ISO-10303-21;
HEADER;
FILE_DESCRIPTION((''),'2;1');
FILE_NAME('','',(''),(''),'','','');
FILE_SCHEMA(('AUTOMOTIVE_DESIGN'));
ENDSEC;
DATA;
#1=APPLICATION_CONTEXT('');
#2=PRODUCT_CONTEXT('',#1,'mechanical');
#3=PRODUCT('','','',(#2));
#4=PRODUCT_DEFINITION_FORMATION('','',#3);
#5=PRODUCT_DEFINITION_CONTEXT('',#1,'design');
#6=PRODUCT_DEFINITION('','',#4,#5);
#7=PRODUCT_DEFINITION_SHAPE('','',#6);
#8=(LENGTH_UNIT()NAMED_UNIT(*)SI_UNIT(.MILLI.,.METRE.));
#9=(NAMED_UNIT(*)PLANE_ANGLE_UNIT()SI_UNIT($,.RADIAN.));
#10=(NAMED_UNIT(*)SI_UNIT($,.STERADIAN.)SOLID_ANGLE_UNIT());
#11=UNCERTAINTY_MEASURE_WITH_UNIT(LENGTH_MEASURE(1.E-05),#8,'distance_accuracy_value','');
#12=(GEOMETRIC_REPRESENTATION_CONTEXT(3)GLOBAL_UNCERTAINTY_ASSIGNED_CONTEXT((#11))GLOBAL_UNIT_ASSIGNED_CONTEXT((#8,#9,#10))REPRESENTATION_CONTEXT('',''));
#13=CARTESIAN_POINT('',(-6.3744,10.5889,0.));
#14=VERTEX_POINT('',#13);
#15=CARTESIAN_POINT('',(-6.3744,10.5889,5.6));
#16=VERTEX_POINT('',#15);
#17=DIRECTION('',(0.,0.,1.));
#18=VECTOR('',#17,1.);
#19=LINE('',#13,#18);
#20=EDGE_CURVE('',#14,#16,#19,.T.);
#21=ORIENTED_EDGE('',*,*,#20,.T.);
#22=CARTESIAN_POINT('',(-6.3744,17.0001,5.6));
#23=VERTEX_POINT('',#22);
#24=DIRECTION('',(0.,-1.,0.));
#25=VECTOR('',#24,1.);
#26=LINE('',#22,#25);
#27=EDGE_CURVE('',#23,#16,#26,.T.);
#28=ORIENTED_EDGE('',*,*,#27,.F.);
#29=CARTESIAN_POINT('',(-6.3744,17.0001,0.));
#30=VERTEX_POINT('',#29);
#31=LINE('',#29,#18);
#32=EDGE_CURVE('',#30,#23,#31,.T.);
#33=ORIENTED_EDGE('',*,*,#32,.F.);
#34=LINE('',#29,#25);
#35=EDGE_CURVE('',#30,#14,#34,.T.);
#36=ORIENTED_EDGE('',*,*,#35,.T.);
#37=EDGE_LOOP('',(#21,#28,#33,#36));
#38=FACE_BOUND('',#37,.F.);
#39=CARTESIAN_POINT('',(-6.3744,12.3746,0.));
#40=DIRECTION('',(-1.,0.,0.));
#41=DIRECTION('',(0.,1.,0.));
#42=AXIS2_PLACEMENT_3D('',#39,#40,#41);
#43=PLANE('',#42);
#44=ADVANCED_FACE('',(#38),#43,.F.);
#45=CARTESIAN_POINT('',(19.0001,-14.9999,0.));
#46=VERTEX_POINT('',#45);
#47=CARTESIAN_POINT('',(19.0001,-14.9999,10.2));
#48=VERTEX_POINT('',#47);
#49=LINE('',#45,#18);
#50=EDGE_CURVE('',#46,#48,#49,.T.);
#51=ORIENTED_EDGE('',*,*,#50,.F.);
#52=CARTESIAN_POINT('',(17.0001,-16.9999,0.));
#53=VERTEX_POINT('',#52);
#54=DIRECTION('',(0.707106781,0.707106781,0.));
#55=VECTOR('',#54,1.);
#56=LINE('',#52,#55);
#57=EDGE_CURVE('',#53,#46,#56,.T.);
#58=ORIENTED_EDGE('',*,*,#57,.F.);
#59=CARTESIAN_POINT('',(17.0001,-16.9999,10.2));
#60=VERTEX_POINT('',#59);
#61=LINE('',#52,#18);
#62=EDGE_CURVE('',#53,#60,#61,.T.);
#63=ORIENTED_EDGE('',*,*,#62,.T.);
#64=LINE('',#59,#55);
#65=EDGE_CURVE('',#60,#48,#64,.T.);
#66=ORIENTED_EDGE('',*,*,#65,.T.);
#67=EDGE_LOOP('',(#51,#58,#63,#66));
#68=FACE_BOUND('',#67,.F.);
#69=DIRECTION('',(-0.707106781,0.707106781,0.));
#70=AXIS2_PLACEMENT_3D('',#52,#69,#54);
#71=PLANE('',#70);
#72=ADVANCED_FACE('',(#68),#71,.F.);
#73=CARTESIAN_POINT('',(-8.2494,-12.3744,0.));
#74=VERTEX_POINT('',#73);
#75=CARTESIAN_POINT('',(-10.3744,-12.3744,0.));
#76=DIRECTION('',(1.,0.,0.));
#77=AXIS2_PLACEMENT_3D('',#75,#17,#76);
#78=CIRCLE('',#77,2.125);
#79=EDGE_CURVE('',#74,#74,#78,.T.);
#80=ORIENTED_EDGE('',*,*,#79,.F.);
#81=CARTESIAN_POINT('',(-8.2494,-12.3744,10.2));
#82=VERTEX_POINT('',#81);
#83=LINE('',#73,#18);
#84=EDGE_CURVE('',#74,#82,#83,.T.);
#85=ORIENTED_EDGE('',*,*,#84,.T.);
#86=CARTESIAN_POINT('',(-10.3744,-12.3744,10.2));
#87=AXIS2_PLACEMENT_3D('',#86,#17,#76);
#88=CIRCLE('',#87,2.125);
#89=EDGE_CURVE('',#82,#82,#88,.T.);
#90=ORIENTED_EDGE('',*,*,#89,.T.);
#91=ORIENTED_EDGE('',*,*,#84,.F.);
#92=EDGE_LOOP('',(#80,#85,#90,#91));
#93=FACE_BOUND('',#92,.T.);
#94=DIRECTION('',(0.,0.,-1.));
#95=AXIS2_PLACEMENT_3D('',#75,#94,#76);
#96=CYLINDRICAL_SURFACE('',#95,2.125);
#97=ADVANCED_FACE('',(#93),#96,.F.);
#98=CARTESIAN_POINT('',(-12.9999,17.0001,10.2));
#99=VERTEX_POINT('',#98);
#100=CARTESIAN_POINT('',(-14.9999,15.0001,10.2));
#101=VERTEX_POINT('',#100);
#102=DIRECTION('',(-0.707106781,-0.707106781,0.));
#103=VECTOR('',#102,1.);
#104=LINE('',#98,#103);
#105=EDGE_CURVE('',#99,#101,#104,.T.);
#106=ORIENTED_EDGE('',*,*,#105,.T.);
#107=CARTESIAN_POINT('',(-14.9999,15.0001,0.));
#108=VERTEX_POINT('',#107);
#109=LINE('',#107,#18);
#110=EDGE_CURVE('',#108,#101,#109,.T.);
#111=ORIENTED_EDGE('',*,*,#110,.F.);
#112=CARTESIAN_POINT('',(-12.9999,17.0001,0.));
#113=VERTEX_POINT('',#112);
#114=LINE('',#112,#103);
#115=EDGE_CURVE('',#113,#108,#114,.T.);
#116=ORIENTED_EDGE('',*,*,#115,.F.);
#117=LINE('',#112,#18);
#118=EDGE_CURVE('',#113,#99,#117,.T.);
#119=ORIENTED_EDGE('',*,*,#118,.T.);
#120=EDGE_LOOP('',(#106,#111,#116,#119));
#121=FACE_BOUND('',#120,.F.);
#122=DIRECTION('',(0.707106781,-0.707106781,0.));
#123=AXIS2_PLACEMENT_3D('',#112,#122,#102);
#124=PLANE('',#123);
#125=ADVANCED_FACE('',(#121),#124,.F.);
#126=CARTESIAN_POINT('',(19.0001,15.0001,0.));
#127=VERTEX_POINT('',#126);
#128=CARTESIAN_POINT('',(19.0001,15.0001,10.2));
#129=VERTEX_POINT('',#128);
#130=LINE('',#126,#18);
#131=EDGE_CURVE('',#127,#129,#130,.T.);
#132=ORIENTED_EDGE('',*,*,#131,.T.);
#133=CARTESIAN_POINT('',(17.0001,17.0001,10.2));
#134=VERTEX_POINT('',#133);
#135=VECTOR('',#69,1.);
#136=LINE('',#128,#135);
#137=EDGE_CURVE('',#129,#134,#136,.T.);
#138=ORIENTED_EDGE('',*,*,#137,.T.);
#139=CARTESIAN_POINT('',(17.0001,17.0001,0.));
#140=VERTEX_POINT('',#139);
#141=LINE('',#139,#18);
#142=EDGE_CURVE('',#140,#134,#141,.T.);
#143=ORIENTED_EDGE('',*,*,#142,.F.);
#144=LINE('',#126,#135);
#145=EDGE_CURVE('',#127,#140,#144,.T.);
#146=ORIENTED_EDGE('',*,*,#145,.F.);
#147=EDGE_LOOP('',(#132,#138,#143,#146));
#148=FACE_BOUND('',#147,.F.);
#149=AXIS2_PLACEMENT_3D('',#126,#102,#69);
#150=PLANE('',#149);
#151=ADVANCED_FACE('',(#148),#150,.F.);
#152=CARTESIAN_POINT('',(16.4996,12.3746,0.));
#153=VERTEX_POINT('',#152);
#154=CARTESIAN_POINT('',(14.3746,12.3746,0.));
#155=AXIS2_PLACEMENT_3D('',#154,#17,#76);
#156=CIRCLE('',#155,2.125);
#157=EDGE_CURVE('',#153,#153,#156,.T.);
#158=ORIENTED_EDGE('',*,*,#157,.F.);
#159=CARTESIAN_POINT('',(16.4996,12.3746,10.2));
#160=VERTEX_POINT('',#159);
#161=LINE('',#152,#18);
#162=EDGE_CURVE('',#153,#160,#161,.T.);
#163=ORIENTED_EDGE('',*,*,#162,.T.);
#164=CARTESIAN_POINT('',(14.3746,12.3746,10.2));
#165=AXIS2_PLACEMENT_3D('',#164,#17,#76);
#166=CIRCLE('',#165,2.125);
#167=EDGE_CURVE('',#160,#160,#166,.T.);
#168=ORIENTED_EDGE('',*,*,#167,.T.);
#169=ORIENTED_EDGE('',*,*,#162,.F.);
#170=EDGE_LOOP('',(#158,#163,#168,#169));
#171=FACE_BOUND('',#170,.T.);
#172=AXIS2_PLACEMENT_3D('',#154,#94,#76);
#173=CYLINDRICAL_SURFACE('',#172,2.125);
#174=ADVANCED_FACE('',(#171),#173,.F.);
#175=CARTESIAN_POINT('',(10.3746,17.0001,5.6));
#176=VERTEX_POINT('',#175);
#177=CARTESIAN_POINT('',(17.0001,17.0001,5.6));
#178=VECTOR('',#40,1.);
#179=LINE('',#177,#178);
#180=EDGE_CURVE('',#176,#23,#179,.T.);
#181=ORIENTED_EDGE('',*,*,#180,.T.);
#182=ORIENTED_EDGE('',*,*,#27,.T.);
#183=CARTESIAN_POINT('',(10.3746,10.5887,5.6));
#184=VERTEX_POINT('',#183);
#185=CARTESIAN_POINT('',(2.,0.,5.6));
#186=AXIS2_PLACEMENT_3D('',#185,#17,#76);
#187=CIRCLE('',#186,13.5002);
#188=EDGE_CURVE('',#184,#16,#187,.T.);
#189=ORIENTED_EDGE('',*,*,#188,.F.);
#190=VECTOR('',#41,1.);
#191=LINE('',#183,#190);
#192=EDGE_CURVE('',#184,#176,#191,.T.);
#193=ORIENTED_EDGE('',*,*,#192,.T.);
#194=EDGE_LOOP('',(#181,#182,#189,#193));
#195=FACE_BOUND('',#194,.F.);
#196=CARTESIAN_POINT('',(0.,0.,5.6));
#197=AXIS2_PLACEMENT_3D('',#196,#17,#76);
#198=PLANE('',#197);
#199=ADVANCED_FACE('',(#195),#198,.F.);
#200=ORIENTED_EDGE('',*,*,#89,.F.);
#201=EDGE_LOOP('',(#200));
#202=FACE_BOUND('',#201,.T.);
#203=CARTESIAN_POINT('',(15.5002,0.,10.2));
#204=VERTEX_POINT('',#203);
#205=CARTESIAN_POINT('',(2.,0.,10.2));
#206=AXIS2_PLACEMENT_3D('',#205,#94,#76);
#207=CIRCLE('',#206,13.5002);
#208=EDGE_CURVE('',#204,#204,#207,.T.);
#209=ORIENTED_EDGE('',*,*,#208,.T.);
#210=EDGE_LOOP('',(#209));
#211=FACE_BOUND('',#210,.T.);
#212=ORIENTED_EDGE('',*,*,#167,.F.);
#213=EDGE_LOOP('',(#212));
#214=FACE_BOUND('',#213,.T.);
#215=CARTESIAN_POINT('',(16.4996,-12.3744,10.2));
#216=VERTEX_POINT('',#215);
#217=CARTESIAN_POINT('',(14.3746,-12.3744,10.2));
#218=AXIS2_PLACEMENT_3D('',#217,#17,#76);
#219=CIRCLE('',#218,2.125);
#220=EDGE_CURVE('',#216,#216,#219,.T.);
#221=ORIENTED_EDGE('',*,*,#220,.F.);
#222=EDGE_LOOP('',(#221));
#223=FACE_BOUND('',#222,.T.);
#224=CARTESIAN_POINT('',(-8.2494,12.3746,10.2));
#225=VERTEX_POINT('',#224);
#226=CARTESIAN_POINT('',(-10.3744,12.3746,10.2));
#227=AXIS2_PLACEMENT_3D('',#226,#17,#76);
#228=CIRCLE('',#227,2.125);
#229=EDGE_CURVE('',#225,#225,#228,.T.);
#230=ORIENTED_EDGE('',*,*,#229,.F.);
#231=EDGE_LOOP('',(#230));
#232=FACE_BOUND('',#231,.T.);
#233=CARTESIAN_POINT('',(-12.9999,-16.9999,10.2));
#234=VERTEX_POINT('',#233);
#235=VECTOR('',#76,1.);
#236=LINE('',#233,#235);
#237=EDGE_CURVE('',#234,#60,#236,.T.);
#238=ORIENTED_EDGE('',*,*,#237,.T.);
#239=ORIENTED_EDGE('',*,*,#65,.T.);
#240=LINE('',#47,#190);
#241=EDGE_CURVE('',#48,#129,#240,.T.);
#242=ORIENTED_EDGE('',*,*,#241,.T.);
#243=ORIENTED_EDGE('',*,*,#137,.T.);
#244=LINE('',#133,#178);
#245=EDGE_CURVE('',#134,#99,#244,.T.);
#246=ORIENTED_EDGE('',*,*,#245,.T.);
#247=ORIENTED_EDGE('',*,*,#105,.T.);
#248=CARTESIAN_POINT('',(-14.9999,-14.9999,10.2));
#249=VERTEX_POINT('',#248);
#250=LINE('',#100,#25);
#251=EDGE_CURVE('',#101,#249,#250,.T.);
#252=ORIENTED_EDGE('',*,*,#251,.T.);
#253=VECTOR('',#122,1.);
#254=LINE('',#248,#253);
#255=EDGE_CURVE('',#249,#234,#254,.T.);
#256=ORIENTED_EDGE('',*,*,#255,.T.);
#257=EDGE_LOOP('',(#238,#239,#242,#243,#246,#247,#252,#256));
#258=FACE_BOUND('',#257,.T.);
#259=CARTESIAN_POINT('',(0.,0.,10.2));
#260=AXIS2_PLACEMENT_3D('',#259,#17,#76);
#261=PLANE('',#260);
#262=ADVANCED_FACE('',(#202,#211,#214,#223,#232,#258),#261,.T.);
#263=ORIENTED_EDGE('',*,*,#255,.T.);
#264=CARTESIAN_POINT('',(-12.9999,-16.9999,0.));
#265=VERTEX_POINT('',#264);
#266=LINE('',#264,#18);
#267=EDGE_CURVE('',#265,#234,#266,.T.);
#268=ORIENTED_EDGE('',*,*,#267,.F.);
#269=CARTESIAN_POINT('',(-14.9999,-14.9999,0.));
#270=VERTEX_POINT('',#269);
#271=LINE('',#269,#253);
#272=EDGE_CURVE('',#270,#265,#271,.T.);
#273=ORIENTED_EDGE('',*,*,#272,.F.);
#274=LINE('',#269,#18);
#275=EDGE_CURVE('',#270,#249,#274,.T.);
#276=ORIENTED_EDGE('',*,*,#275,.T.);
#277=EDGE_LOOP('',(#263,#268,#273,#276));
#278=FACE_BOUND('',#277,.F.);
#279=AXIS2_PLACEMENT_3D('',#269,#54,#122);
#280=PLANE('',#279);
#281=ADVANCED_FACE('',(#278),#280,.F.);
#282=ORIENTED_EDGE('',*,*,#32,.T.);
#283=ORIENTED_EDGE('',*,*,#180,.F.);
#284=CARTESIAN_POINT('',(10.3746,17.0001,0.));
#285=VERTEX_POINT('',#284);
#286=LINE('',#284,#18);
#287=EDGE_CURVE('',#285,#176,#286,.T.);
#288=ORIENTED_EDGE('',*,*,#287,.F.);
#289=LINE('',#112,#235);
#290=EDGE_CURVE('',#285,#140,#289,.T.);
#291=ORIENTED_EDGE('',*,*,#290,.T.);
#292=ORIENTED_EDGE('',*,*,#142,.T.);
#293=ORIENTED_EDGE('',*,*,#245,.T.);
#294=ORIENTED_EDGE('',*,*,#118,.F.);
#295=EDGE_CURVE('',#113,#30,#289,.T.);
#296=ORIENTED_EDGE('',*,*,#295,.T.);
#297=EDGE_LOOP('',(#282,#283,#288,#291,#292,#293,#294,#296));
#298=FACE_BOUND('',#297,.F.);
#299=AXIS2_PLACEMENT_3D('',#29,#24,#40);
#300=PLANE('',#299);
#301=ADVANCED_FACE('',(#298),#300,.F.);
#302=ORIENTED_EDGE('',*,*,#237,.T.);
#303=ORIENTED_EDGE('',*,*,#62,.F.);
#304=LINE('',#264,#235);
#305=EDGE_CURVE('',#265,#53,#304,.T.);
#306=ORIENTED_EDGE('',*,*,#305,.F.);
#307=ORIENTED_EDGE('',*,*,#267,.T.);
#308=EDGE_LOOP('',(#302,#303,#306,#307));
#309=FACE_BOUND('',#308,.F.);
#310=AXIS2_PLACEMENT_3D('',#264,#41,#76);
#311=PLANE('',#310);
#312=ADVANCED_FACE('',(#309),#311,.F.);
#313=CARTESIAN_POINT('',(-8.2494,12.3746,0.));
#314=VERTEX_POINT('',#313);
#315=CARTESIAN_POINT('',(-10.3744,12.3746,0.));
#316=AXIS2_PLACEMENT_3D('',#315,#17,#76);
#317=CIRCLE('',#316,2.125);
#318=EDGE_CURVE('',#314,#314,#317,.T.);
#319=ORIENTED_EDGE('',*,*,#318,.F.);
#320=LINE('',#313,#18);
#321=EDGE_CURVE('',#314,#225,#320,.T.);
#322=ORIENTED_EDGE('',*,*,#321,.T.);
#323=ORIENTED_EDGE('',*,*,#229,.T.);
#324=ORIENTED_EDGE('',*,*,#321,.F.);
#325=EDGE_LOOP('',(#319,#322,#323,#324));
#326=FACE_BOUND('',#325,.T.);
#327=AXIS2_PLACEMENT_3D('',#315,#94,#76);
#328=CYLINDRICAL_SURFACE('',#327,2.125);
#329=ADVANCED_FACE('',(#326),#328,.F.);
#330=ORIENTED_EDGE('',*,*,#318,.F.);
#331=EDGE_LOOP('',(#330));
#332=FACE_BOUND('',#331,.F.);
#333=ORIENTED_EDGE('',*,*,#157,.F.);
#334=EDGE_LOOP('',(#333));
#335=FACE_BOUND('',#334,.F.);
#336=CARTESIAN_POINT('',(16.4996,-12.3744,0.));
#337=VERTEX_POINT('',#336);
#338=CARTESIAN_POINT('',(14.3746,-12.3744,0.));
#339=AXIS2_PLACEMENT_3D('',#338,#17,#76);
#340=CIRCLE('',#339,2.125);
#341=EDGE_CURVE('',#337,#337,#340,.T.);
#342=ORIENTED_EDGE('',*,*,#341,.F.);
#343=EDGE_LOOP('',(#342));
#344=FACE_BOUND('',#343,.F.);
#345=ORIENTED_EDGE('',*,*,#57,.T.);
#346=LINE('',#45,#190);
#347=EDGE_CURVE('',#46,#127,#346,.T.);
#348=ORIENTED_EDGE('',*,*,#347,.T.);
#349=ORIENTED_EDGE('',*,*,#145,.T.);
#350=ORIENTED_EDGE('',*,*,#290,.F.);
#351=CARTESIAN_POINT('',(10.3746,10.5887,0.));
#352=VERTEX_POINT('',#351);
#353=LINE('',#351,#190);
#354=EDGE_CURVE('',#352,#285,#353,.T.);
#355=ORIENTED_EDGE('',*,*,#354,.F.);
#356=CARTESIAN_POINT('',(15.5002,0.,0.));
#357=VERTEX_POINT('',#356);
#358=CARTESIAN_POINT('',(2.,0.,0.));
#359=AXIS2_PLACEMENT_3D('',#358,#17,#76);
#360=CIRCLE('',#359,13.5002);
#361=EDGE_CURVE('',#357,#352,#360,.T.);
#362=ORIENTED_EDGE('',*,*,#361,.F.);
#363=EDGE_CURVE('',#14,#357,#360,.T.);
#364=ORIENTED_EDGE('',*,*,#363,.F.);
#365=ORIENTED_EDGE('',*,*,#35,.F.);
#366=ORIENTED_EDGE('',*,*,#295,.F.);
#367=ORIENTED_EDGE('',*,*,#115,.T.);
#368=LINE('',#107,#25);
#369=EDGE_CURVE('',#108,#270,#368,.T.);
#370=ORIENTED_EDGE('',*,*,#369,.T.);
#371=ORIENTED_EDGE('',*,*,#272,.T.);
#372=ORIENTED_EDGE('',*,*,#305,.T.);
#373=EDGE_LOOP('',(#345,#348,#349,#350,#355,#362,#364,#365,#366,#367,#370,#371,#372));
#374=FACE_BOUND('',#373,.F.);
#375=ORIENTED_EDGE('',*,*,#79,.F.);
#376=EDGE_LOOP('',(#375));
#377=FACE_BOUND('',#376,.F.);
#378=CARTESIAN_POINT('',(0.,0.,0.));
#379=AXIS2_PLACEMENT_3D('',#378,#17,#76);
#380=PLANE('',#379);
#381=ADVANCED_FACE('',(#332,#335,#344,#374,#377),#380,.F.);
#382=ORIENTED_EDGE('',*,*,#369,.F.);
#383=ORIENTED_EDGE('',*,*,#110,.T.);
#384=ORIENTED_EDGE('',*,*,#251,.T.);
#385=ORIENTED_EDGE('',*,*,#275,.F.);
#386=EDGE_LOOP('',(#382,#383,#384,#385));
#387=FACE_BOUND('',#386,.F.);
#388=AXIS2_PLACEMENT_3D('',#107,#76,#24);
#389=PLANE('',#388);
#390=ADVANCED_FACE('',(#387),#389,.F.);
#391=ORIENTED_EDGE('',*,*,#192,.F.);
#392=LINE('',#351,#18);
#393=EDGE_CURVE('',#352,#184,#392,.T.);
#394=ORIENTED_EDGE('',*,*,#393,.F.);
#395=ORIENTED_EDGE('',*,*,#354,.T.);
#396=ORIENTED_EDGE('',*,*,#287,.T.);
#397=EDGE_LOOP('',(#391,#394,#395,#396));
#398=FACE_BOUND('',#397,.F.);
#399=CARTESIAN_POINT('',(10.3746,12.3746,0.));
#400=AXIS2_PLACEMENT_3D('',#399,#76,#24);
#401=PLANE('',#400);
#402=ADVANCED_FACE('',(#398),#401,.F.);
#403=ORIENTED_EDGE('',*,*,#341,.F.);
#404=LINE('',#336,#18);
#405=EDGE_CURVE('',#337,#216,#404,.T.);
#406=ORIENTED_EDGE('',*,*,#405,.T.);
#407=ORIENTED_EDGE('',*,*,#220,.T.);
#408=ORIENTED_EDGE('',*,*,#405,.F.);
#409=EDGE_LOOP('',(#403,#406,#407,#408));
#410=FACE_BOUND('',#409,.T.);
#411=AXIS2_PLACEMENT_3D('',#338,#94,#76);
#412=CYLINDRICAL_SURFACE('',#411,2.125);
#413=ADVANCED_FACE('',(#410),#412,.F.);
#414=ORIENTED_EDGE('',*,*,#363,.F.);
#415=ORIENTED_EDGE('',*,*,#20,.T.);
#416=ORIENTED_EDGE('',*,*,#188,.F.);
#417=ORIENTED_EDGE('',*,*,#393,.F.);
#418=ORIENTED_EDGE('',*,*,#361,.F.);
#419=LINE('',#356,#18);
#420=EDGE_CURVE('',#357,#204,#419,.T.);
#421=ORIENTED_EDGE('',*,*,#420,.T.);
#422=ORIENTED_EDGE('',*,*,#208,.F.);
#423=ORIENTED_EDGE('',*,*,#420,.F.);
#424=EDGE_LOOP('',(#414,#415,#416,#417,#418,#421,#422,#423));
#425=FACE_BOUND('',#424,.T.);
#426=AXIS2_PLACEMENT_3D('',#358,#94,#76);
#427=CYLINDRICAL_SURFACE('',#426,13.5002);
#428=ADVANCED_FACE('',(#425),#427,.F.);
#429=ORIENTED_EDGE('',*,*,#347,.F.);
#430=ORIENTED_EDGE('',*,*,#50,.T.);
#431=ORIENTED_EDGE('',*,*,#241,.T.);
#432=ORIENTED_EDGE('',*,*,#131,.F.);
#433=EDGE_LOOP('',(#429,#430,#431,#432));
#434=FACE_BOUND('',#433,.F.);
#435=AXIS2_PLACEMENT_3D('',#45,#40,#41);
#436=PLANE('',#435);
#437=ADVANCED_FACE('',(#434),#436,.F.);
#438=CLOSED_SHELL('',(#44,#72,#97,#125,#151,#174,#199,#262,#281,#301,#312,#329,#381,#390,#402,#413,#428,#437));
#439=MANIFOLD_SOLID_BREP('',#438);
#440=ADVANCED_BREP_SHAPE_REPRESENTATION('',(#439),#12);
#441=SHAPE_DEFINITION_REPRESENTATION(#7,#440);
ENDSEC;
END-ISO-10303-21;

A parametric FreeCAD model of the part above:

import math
import FreeCAD as App
import Part
import Sketcher
from FreeCAD import Vector


def add_polygon(sketch, points):
    """Adds a closed chain of lines whose ends are joined by coincident constraints."""
    first, n = sketch.GeometryCount, len(points)
    for a, b in zip(points, points[1:] + points[:1]):
        sketch.addGeometry(Part.LineSegment(App.Vector(*a, 0), App.Vector(*b, 0)), False)
    for i in range(n):
        sketch.addConstraint(Sketcher.Constraint("Coincident", first + i, 2, first + (i + 1) % n, 1))

doc = App.newDocument("Part")
params = doc.addObject("Spreadsheet::Sheet", "Params")
for row, (alias, value) in enumerate([
    ("sketch1_diameter", "4.25 mm"),
    ("sketch1_width", "30 mm"),
    ("pad1_length", "10.2 mm"),
    ("pocket1_length", "5.6 mm"),
], start=1):
    params.set(f"A{row}", alias)
    params.set(f"B{row}", "=" + value)
    params.setAlias(f"B{row}", alias)

body = doc.addObject("PartDesign::Body", "Body")

sketch1 = body.newObject("Sketcher::SketchObject", "Sketch")
sketch1.AttachmentSupport = (doc.getObject("XY_Plane"), [""])
sketch1.MapMode = "FlatFace"
add_polygon(sketch1, [(17, -17), (19, -15), (19, 15), (17, 17), (-13, 17), (-15, 15), (-15, -15), (-13, -17)])
sketch1.addGeometry(Part.Circle(Vector(2, 0, 0), Vector(0, 0, 1), 13.5), False)
sketch1.addGeometry(Part.Circle(Vector(-10.4, -12.4, 0), Vector(0, 0, 1), 2.1), False)
sketch1.addGeometry(Part.Circle(Vector(14.4, -12.4, 0), Vector(0, 0, 1), 2.1), False)
sketch1.addGeometry(Part.Circle(Vector(-10.4, 12.4, 0), Vector(0, 0, 1), 2.1), False)
sketch1.addGeometry(Part.Circle(Vector(14.4, 12.4, 0), Vector(0, 0, 1), 2.1), False)
sketch1.addConstraint(Sketcher.Constraint("Vertical", 1))
sketch1.addConstraint(Sketcher.Constraint("Horizontal", 3))
sketch1.addConstraint(Sketcher.Constraint("Vertical", 5))
sketch1.addConstraint(Sketcher.Constraint("Horizontal", 7))
sketch1.addConstraint(Sketcher.Constraint("Equal", 9, 10))
sketch1.addConstraint(Sketcher.Constraint("Equal", 10, 11))
sketch1.addConstraint(Sketcher.Constraint("Equal", 11, 12))
sketch1.addConstraint(Sketcher.Constraint("Symmetric", 9, 3, 11, 3, -1))
sketch1.addConstraint(Sketcher.Constraint("Symmetric", 10, 3, 12, 3, -1))
sketch1.addConstraint(Sketcher.Constraint("Symmetric", 3, 2, 6, 2, -1))
sketch1.addConstraint(Sketcher.Constraint("PointOnObject", 8, 3, -1))
sketch1.addConstraint(Sketcher.Constraint("Perpendicular", 0, 2))
sketch1.addConstraint(Sketcher.Constraint("Perpendicular", 2, 4))
sketch1.addConstraint(Sketcher.Constraint("Perpendicular", 4, 6))
sketch1.addConstraint(Sketcher.Constraint("Horizontal", 9, 3, 10, 3))
sketch1.addConstraint(Sketcher.Constraint("Horizontal", 1, 2, 4, 2))
sketch1.addConstraint(Sketcher.Constraint("Horizontal", 0, 2, 5, 2))
sketch1.addConstraint(Sketcher.Constraint("Vertical", 2, 2, 7, 2))
sketch1.addConstraint(Sketcher.Constraint("Equal", 7, 1))
sketch1.addConstraint(Sketcher.Constraint("Diameter", 9, 4.25))
sketch1.addConstraint(Sketcher.Constraint("DistanceX", 3, 2, 3, 1, 30.0))
sketch1.addConstraint(Sketcher.Constraint("DistanceX", -1, 1, 8, 3, 2.0))
sketch1.addConstraint(Sketcher.Constraint("DistanceX", -1, 1, 0, 2, 19.0))
sketch1.addConstraint(Sketcher.Constraint("DistanceX", -1, 1, 2, 2, 17.0))
sketch1.addConstraint(Sketcher.Constraint("Diameter", 8, 27.0004))
sketch1.addConstraint(Sketcher.Constraint("DistanceX", 9, 3, 10, 3, 24.749))
sketch1.addConstraint(Sketcher.Constraint("DistanceY", 9, 3, 11, 3, 24.749))
sketch1.addConstraint(Sketcher.Constraint("DistanceX", 9, 3, -1, 1, 10.3744))
sketch1.setExpression("Constraints[27]", "Params.sketch1_diameter")
sketch1.setExpression("Constraints[28]", "Params.sketch1_width")
pad1 = body.newObject("PartDesign::Pad", "Pad")
pad1.Profile = sketch1
pad1.setExpression("Length", "Params.pad1_length")

sketch2 = body.newObject("Sketcher::SketchObject", "Sketch001")
sketch2.AttachmentSupport = (doc.getObject("XY_Plane"), [""])
sketch2.MapMode = "FlatFace"
sketch2.addGeometry(Part.LineSegment(Vector(10, 11, 0), Vector(10, 17, 0)), False)
sketch2.addGeometry(Part.LineSegment(Vector(10, 17, 0), Vector(-6, 17, 0)), False)
sketch2.addGeometry(Part.LineSegment(Vector(-6, 17, 0), Vector(-6, 11, 0)), False)
sketch2.addGeometry(Part.ArcOfCircle(Part.Circle(Vector(2, 0, 0), Vector(0, 0, 1), 14), math.radians(52), math.radians(128)), False)
sketch2.addConstraint(Sketcher.Constraint("Coincident", 0, 2, 1, 1))
sketch2.addConstraint(Sketcher.Constraint("Coincident", 1, 2, 2, 1))
sketch2.addConstraint(Sketcher.Constraint("Coincident", 2, 2, 3, 2))
sketch2.addConstraint(Sketcher.Constraint("Coincident", 3, 1, 0, 1))
sketch2.addConstraint(Sketcher.Constraint("Vertical", 0))
sketch2.addConstraint(Sketcher.Constraint("Horizontal", 1))
sketch2.addConstraint(Sketcher.Constraint("Vertical", 2))
sketch2.addConstraint(Sketcher.Constraint("PointOnObject", 3, 3, -1))
sketch2.addConstraint(Sketcher.Constraint("Horizontal", 2, 2, 3, 1))
sketch2.addConstraint(Sketcher.Constraint("DistanceX", -1, 1, 3, 3, 2.0))
sketch2.addConstraint(Sketcher.Constraint("DistanceY", -1, 1, 0, 2, 17.0))
sketch2.addConstraint(Sketcher.Constraint("Radius", 3, 13.5002))
sketch2.addConstraint(Sketcher.Constraint("DistanceX", 1, 2, 1, 1, 16.749))
pocket1 = body.newObject("PartDesign::Pocket", "Pocket")
pocket1.Profile = sketch2
pocket1.setExpression("Length", "Params.pocket1_length")
pocket1.Reversed = True

doc.recompute()
